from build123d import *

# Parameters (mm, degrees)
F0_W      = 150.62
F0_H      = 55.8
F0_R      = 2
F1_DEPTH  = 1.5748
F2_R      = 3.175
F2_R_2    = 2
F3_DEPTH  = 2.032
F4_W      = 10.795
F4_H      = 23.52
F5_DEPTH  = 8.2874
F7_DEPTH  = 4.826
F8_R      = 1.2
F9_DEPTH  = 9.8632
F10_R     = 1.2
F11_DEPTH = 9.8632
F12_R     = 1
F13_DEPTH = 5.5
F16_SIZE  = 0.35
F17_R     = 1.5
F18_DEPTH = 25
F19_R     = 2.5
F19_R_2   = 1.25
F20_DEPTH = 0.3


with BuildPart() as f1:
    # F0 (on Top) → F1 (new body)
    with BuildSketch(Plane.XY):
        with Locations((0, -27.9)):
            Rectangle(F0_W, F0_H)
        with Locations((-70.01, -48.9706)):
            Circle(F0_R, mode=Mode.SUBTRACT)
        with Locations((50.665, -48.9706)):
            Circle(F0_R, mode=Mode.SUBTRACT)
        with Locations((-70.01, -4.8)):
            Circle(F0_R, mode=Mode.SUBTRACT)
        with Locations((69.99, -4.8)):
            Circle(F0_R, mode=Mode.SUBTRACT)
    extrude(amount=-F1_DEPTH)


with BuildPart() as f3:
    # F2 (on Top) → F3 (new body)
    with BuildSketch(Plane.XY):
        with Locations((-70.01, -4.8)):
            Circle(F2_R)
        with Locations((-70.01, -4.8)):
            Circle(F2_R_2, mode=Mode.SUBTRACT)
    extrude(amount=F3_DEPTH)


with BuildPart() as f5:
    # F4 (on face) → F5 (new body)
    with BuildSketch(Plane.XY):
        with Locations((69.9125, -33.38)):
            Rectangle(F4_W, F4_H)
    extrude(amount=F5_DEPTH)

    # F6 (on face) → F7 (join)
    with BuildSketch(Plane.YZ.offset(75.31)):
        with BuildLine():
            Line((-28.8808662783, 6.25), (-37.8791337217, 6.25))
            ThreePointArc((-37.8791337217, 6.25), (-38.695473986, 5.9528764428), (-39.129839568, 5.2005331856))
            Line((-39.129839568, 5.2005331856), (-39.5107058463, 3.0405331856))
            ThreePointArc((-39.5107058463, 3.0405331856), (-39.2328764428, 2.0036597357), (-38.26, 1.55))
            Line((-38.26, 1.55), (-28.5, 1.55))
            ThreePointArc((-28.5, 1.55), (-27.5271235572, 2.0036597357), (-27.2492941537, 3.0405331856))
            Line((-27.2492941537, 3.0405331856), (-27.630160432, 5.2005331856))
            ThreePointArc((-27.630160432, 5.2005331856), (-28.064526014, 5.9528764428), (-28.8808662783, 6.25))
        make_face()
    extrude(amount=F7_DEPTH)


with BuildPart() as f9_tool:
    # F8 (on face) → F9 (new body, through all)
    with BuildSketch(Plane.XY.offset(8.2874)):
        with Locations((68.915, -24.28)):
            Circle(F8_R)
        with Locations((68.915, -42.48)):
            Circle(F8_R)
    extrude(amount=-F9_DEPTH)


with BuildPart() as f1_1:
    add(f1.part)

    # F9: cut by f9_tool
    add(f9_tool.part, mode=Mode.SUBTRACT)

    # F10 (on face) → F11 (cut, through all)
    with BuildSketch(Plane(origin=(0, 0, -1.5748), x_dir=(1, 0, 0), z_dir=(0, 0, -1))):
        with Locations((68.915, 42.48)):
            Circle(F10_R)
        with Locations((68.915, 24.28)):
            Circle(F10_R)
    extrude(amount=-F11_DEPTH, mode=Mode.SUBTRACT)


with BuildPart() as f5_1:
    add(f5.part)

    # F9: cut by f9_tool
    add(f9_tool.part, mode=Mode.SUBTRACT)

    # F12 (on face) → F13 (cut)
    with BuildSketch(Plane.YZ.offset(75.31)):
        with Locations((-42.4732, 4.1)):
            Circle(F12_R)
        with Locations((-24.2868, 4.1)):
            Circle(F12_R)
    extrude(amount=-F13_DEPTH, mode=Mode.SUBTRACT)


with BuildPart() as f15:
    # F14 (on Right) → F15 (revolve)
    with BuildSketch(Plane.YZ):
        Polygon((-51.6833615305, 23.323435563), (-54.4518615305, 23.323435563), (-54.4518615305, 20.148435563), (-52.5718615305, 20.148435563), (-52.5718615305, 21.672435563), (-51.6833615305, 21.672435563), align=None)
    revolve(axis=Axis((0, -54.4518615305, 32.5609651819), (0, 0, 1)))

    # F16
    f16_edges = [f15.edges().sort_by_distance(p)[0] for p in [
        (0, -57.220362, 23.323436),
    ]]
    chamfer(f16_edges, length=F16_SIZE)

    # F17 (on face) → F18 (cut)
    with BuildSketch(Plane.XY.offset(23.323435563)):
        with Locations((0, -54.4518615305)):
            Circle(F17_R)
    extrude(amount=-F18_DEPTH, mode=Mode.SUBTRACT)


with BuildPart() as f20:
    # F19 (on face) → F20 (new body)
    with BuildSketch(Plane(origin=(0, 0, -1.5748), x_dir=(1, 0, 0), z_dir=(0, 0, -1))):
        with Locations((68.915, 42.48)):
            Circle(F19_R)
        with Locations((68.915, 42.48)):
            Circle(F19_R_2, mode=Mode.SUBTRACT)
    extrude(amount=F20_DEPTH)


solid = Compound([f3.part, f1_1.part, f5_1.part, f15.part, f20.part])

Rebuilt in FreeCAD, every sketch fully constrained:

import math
import FreeCAD as App
import Part
import Sketcher

V = App.Vector
Q = App.Units.Quantity


def edges_at(feature, points):
    """Names of the edges that pass closest to the given points."""
    edges = feature.Shape.Edges
    near = lambda p: min(range(len(edges)), key=lambda i: edges[i].distToShape(Part.Vertex(*p))[0])
    return sorted({f"Edge{near(p) + 1}" for p in points})


def add_polygon(sketch, points):
    """Adds a closed chain of lines whose ends are joined by coincident constraints."""
    first, n = sketch.GeometryCount, len(points)
    for a, b in zip(points, points[1:] + points[:1]):
        sketch.addGeometry(Part.LineSegment(App.Vector(*a, 0), App.Vector(*b, 0)), False)
    for i in range(n):
        sketch.addConstraint(Sketcher.Constraint("Coincident", first + i, 2, first + (i + 1) % n, 1))

doc = App.newDocument("Part")
body = doc.addObject("PartDesign::Body", "Body")

sketch1 = body.newObject("Sketcher::SketchObject", "Sketch")
sketch1.AttachmentSupport = (doc.getObject("XY_Plane"), [""])
sketch1.MapMode = "FlatFace"
add_polygon(sketch1, [(-75.31, 0), (-75.31, -55.8), (75.31, -55.8), (75.31, 0)])
sketch1.addGeometry(Part.Circle(V(-70.01, -48.9706, 0), V(0, 0, 1), 2), False)
sketch1.addGeometry(Part.Circle(V(50.665, -48.9706, 0), V(0, 0, 1), 2), False)
sketch1.addGeometry(Part.Circle(V(-70.01, -4.8, 0), V(0, 0, 1), 2), False)
sketch1.addGeometry(Part.Circle(V(69.99, -4.8, 0), V(0, 0, 1), 2), False)
sketch1.addConstraint([
    Sketcher.Constraint("Vertical", 0),
    Sketcher.Constraint("Horizontal", 1),
    Sketcher.Constraint("Vertical", 2),
    Sketcher.Constraint("Horizontal", 3),
    Sketcher.Constraint("Equal", 4, 5),
    Sketcher.Constraint("Equal", 5, 6),
    Sketcher.Constraint("Equal", 6, 7),
    Sketcher.Constraint("Symmetric", 2, 2, 3, 2, -1, 1),
    Sketcher.Constraint("Horizontal", 4, 3, 5, 3),
    Sketcher.Constraint("Horizontal", 6, 3, 7, 3),
    Sketcher.Constraint("Vertical", 4, 3, 6, 3),
    Sketcher.Constraint("Diameter", 4, Q("4 mm")),
    Sketcher.Constraint("DistanceY", 0, 2, 0, 1, Q("55.8 mm")),
    Sketcher.Constraint("DistanceX", 6, 3, 7, 3, Q("140 mm")),
    Sketcher.Constraint("DistanceY", 0, 2, 6, 3, Q("51 mm")),
    Sketcher.Constraint("DistanceX", 1, 1, 1, 2, Q("150.62 mm")),
    Sketcher.Constraint("DistanceX", 0, 2, 4, 3, Q("5.3 mm")),
    Sketcher.Constraint("DistanceX", -1, 1, 5, 3, Q("50.665 mm")),
    Sketcher.Constraint("DistanceY", 4, 3, -1, 1, Q("48.9706 mm")),
])
pad1 = body.newObject("PartDesign::Pad", "Pad")
pad1.Profile = sketch1
pad1.Length = 1.5748
pad1.Reversed = True
body2 = doc.addObject("PartDesign::Body", "Body001")

sketch2 = body2.newObject("Sketcher::SketchObject", "Sketch001")
sketch2.AttachmentSupport = (doc.getObject("XY_Plane001"), [""])
sketch2.MapMode = "FlatFace"
sketch2.addGeometry([
    Part.Circle(V(-70.01, -4.8, 0), V(0, 0, 1), 3.175),
    Part.Circle(V(-70.01, -4.8, 0), V(0, 0, 1), 2),
], False)
sketch2.addConstraint([
    Sketcher.Constraint("Coincident", 1, 3, 0, 3),
    Sketcher.Constraint("Diameter", 1, Q("4 mm")),
    Sketcher.Constraint("Diameter", 0, Q("6.35 mm")),
    Sketcher.Constraint("DistanceY", 0, 3, -1, 1, Q("4.8 mm")),
    Sketcher.Constraint("DistanceX", 0, 3, -1, 1, Q("70.01 mm")),
])
pad2 = body2.newObject("PartDesign::Pad", "Pad001")
pad2.Profile = sketch2
pad2.Length = 2.032
body3 = doc.addObject("PartDesign::Body", "Body002")

sketch3 = body3.newObject("Sketcher::SketchObject", "Sketch002")
sketch3.AttachmentSupport = (doc.getObject("XY_Plane002"), [""])
sketch3.MapMode = "FlatFace"
add_polygon(sketch3, [(64.515, -21.62), (64.515, -45.14), (75.31, -45.14), (75.31, -21.62)])
sketch3.addConstraint([
    Sketcher.Constraint("Vertical", 0),
    Sketcher.Constraint("Horizontal", 1),
    Sketcher.Constraint("Vertical", 2),
    Sketcher.Constraint("Horizontal", 3),
    Sketcher.Constraint("DistanceY", 0, 2, 0, 1, Q("23.52 mm")),
    Sketcher.Constraint("DistanceX", 1, 1, 1, 2, Q("10.795 mm")),
    Sketcher.Constraint("DistanceY", 0, 2, -1, 1, Q("45.14 mm")),
    Sketcher.Constraint("DistanceX", -1, 1, 1, 2, Q("75.31 mm")),
])
pad3 = body3.newObject("PartDesign::Pad", "Pad002")
pad3.Profile = sketch3
pad3.Length = 8.2874

sketch4 = body3.newObject("Sketcher::SketchObject", "Sketch003")
sketch4.AttachmentSupport = (doc.getObject("YZ_Plane002"), [""])
sketch4.MapMode = "FlatFace"
sketch4.AttachmentOffset = App.Placement(V(0, 0, 75.31), App.Rotation())
sketch4.addGeometry([
    Part.LineSegment(V(-28.880866, 6.25, 0), V(-37.879134, 6.25, 0)),
    Part.ArcOfCircle(Part.Circle(V(-37.879134, 4.98, 0), V(0, 0, 1), 1.27), math.radians(90), math.radians(170)),
    Part.LineSegment(V(-39.12984, 5.200533, 0), V(-39.510706, 3.040533, 0)),
    Part.ArcOfCircle(Part.Circle(V(-38.26, 2.82, 0), V(0, 0, 1), 1.27), math.radians(170), math.radians(270)),
    Part.LineSegment(V(-38.26, 1.55, 0), V(-28.5, 1.55, 0)),
    Part.ArcOfCircle(Part.Circle(V(-28.5, 2.82, 0), V(0, 0, 1), 1.27), math.radians(-90), math.radians(10)),
    Part.LineSegment(V(-27.249294, 3.040533, 0), V(-27.63016, 5.200533, 0)),
    Part.ArcOfCircle(Part.Circle(V(-28.880866, 4.98, 0), V(0, 0, 1), 1.27), math.radians(10), math.radians(90)),
], False)
sketch4.addConstraint([
    Sketcher.Constraint("Tangent", 0, 2, 1, 1),
    Sketcher.Constraint("Tangent", 1, 2, 2, 1),
    Sketcher.Constraint("Tangent", 2, 2, 3, 1),
    Sketcher.Constraint("Tangent", 3, 2, 4, 1),
    Sketcher.Constraint("Tangent", 4, 2, 5, 1),
    Sketcher.Constraint("Tangent", 5, 2, 6, 1),
    Sketcher.Constraint("Tangent", 6, 2, 7, 1),
    Sketcher.Constraint("Tangent", 7, 2, 0, 1),
    Sketcher.Constraint("Horizontal", 0),
    Sketcher.Constraint("Horizontal", 4),
    Sketcher.Constraint("Equal", 1, 3),
    Sketcher.Constraint("Equal", 3, 5),
    Sketcher.Constraint("Equal", 5, 7),
    Sketcher.Constraint("Horizontal", 2, 2, 5, 2),
    Sketcher.Constraint("Angle", 2, Q("-100 deg")),
    Sketcher.Constraint("Radius", 1, Q("1.27 mm")),
    Sketcher.Constraint("DistanceX", 4, 1, 4, 2, Q("9.76 mm")),
    Sketcher.Constraint("DistanceX", 5, 3, -1, 1, Q("28.5 mm")),
    Sketcher.Constraint("DistanceY", 3, 2, 0, 2, Q("4.7 mm")),
    Sketcher.Constraint("DistanceY", -1, 1, 1, 3, Q("4.98 mm")),
])
pad4 = body3.newObject("PartDesign::Pad", "Pad003")
pad4.Profile = sketch4
pad4.Length = 4.826
body4 = doc.addObject("PartDesign::Body", "Body003")
body4.AllowCompound = True

sketch5 = body4.newObject("Sketcher::SketchObject", "Sketch004")
sketch5.AttachmentSupport = (doc.getObject("XY_Plane003"), [""])
sketch5.MapMode = "FlatFace"
sketch5.AttachmentOffset = App.Placement(V(0, 0, 8.2874), App.Rotation())
sketch5.addGeometry([
    Part.Circle(V(68.915, -24.28, 0), V(0, 0, 1), 1.2),
    Part.Circle(V(68.915, -42.48, 0), V(0, 0, 1), 1.2),
], False)
sketch5.addConstraint([
    Sketcher.Constraint("Equal", 0, 1),
    Sketcher.Constraint("Vertical", 0, 3, 1, 3),
    Sketcher.Constraint("Diameter", 0, Q("2.4 mm")),
    Sketcher.Constraint("DistanceY", 1, 3, 0, 3, Q("18.2 mm")),
    Sketcher.Constraint("DistanceY", 0, 3, -1, 1, Q("24.28 mm")),
    Sketcher.Constraint("DistanceX", -1, 1, 0, 3, Q("68.915 mm")),
])
pad5 = body4.newObject("PartDesign::Pad", "Pad004")
pad5.Profile = sketch5
pad5.Length = 9.8632
pad5.Reversed = True
doc.recompute()

body5 = doc.addObject("PartDesign::Body", "Body004")
body5.BaseFeature = body4
boolean = body.newObject("PartDesign::Boolean", "Boolean")
boolean.Type = "Cut"
boolean.addObjects([body5])
doc.recompute()

sketch6 = body.newObject("Sketcher::SketchObject", "Sketch005")
sketch6.AttachmentSupport = (doc.getObject("XY_Plane"), [""])
sketch6.MapMode = "FlatFace"
sketch6.AttachmentOffset = App.Placement(V(0, 0, -1.5748), App.Rotation())
sketch6.addGeometry([
    Part.Circle(V(68.915, -42.48, 0), V(0, 0, 1), 1.2),
    Part.Circle(V(68.915, -24.28, 0), V(0, 0, 1), 1.2),
], False)
sketch6.addConstraint([
    Sketcher.Constraint("Equal", 0, 1),
    Sketcher.Constraint("Vertical", 0, 3, 1, 3),
    Sketcher.Constraint("Diameter", 0, Q("2.4 mm")),
    Sketcher.Constraint("DistanceY", 0, 3, 1, 3, Q("18.2 mm")),
    Sketcher.Constraint("DistanceY", 0, 3, -1, 1, Q("42.48 mm")),
    Sketcher.Constraint("DistanceX", -1, 1, 0, 3, Q("68.915 mm")),
])
pocket1 = body.newObject("PartDesign::Pocket", "Pocket")
pocket1.Profile = sketch6
pocket1.Type = "ThroughAll"
pocket1.Reversed = True
doc.recompute()

boolean2 = body3.newObject("PartDesign::Boolean", "Boolean001")
boolean2.Type = "Cut"
boolean2.addObjects([body4])

sketch7 = body3.newObject("Sketcher::SketchObject", "Sketch006")
sketch7.AttachmentSupport = (doc.getObject("YZ_Plane002"), [""])
sketch7.MapMode = "FlatFace"
sketch7.AttachmentOffset = App.Placement(V(0, 0, 75.31), App.Rotation())
sketch7.addGeometry([
    Part.Circle(V(-42.4732, 4.1, 0), V(0, 0, 1), 1),
    Part.Circle(V(-24.2868, 4.1, 0), V(0, 0, 1), 1),
], False)
sketch7.addConstraint([
    Sketcher.Constraint("Equal", 0, 1),
    Sketcher.Constraint("Horizontal", 0, 3, 1, 3),
    Sketcher.Constraint("Diameter", 0, Q("2 mm")),
    Sketcher.Constraint("DistanceY", -1, 1, 0, 3, Q("4.1 mm")),
    Sketcher.Constraint("DistanceX", 0, 3, -1, 1, Q("42.4732 mm")),
    Sketcher.Constraint("DistanceX", 1, 3, -1, 1, Q("24.2868 mm")),
])
pocket2 = body3.newObject("PartDesign::Pocket", "Pocket001")
pocket2.Profile = sketch7
pocket2.Length = 5.5
body6 = doc.addObject("PartDesign::Body", "Body005")

sketch8 = body6.newObject("Sketcher::SketchObject", "Sketch007")
sketch8.AttachmentSupport = (doc.getObject("YZ_Plane005"), [""])
sketch8.MapMode = "FlatFace"
add_polygon(sketch8, [(-51.683362, 23.323436), (-54.451862, 23.323436), (-54.451862, 20.148436), (-52.571862, 20.148436), (-52.571862, 21.672436), (-51.683362, 21.672436)])
sketch8.addGeometry(Part.LineSegment(V(-54.451862, 20.148436, 0), V(-54.451862, 23.323436, 0)), True)
sketch8.addConstraint([
    Sketcher.Constraint("Horizontal", 0),
    Sketcher.Constraint("Vertical", 1),
    Sketcher.Constraint("Horizontal", 2),
    Sketcher.Constraint("Vertical", 3),
    Sketcher.Constraint("Horizontal", 4),
    Sketcher.Constraint("Vertical", 5),
    Sketcher.Constraint("Vertical", 6),
    Sketcher.Constraint("Coincident", 6, 1, 1, 2),
    Sketcher.Constraint("Horizontal", 5, 2, 6, 2),
    Sketcher.Constraint("DistanceX", 2, 1, 2, 2, Q("1.88 mm")),
    Sketcher.Constraint("DistanceY", 1, 2, 1, 1, Q("3.175 mm")),
    Sketcher.Constraint("DistanceY", 3, 1, 3, 2, Q("1.524 mm")),
    Sketcher.Constraint("DistanceX", 0, 2, 0, 1, Q("2.7685 mm")),
    Sketcher.Constraint("DistanceX", 0, 2, -1, 1, Q("54.451862 mm")),
    Sketcher.Constraint("DistanceY", -1, 1, 0, 2, Q("23.323436 mm")),
])
revolution = body6.newObject("PartDesign::Revolution", "Revolution")
revolution.Profile = sketch8
revolution.ReferenceAxis = (sketch8, ["Axis0"])
revolution.Angle = 360
doc.recompute()

chamfer = body6.newObject("PartDesign::Chamfer", "Chamfer")
chamfer.Base = (revolution, edges_at(revolution, [(0, -57.22, 23.323)]))
chamfer.Size = 0.35

sketch9 = body6.newObject("Sketcher::SketchObject", "Sketch008")
sketch9.AttachmentSupport = (doc.getObject("XY_Plane005"), [""])
sketch9.MapMode = "FlatFace"
sketch9.AttachmentOffset = App.Placement(V(0, 0, 23.323436), App.Rotation())
sketch9.addGeometry(Part.Circle(V(0, -54.451862, 0), V(0, 0, 1), 1.5), False)
sketch9.addConstraint([
    Sketcher.Constraint("PointOnObject", 0, 3, -2),
    Sketcher.Constraint("Diameter", 0, Q("3 mm")),
    Sketcher.Constraint("DistanceY", 0, 3, -1, 1, Q("54.451862 mm")),
])
pocket3 = body6.newObject("PartDesign::Pocket", "Pocket002")
pocket3.Profile = sketch9
pocket3.Length = 25
body7 = doc.addObject("PartDesign::Body", "Body006")

sketch10 = body7.newObject("Sketcher::SketchObject", "Sketch009")
sketch10.AttachmentSupport = (doc.getObject("XY_Plane006"), [""])
sketch10.MapMode = "FlatFace"
sketch10.AttachmentOffset = App.Placement(V(0, 0, -1.5748), App.Rotation())
sketch10.addGeometry([
    Part.Circle(V(68.915, -42.48, 0), V(0, 0, 1), 2.5),
    Part.Circle(V(68.915, -42.48, 0), V(0, 0, 1), 1.25),
], False)
sketch10.addConstraint([
    Sketcher.Constraint("Coincident", 1, 3, 0, 3),
    Sketcher.Constraint("Diameter", 0, Q("5 mm")),
    Sketcher.Constraint("Diameter", 1, Q("2.5 mm")),
    Sketcher.Constraint("DistanceY", 0, 3, -1, 1, Q("42.48 mm")),
    Sketcher.Constraint("DistanceX", -1, 1, 0, 3, Q("68.915 mm")),
])
pad6 = body7.newObject("PartDesign::Pad", "Pad005")
pad6.Profile = sketch10
pad6.Length = 0.3
pad6.Reversed = True

doc.recompute()
